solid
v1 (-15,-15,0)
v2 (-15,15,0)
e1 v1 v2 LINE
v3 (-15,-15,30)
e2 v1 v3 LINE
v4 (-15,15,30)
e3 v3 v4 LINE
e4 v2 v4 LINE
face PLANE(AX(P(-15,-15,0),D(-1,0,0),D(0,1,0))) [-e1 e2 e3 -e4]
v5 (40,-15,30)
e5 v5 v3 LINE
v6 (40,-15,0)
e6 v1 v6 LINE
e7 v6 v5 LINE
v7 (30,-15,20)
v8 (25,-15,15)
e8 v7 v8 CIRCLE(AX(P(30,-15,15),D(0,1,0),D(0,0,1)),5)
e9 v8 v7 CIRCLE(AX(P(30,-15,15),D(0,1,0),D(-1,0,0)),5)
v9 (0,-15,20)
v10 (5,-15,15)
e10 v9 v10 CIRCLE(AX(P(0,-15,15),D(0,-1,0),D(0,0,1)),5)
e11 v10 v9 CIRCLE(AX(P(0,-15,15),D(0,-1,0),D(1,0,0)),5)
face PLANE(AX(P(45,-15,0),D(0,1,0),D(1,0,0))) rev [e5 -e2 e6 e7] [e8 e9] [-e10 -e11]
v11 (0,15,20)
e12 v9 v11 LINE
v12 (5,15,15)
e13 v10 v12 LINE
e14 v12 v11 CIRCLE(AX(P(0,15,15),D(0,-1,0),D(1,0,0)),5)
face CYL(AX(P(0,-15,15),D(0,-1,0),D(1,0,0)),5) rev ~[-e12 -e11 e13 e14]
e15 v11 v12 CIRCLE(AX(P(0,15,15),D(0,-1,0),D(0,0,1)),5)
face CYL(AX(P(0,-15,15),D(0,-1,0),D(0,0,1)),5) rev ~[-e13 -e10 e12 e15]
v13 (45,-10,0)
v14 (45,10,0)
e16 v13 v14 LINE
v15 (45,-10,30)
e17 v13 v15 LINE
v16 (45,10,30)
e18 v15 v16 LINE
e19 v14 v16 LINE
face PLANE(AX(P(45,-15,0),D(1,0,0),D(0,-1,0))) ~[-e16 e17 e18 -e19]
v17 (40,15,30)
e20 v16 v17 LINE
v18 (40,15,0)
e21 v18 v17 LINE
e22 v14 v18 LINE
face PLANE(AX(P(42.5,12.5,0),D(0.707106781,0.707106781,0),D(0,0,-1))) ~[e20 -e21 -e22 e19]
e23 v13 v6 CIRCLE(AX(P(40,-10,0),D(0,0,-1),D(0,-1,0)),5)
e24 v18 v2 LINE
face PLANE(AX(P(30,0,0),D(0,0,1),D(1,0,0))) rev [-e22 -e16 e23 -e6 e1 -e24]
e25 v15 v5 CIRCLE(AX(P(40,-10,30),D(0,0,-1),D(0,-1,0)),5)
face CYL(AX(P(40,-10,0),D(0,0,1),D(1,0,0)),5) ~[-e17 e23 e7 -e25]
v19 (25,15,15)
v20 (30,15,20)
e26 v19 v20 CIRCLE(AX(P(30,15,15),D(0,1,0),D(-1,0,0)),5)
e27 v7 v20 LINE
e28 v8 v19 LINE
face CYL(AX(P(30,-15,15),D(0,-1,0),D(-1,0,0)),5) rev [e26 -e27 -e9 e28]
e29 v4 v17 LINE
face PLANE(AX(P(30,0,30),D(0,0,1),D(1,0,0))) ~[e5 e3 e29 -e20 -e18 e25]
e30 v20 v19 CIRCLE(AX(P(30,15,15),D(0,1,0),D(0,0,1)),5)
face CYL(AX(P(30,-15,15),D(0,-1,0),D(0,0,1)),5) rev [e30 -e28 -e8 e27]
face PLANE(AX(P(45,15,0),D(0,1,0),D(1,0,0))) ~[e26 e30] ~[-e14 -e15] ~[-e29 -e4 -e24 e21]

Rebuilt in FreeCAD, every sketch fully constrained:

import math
import FreeCAD as App
import Part
import Sketcher
Q = App.Units.Quantity


def edges_at(feature, points):
    """Names of the edges that pass closest to the given points."""
    edges = feature.Shape.Edges
    near = lambda p: min(range(len(edges)), key=lambda i: edges[i].distToShape(Part.Vertex(*p))[0])
    return sorted({f"Edge{near(p) + 1}" for p in points})


def add_polygon(sketch, points):
    """Adds a closed chain of lines whose ends are joined by coincident constraints."""
    first, n = sketch.GeometryCount, len(points)
    for a, b in zip(points, points[1:] + points[:1]):
        sketch.addGeometry(Part.LineSegment(App.Vector(*a, 0), App.Vector(*b, 0)), False)
    for i in range(n):
        sketch.addConstraint(Sketcher.Constraint("Coincident", first + i, 2, first + (i + 1) % n, 1))

doc = App.newDocument("Part")
body = doc.addObject("PartDesign::Body", "Body")

# Sketch on XY plane
sketch1 = body.newObject("Sketcher::SketchObject", "Sketch")
sketch1.AttachmentSupport = (doc.getObject("XY_Plane"), [""])
sketch1.MapMode = "FlatFace"
add_polygon(sketch1, [(-15, 15), (-15, -15), (15, -15), (15, 15)])  # lines 0-3
sketch1.addConstraint(Sketcher.Constraint("Vertical", 0))
sketch1.addConstraint(Sketcher.Constraint("Horizontal", 1))
sketch1.addConstraint(Sketcher.Constraint("Vertical", 2))
sketch1.addConstraint(Sketcher.Constraint("Horizontal", 3))
sketch1.addConstraint(Sketcher.Constraint("Symmetric", 0, 2, 2, 2, -1, 1))
sketch1.addConstraint(Sketcher.Constraint("Equal", 3, 0))
sketch1.addConstraint(Sketcher.Constraint("DistanceX", 1, 1, 1, 2, Q("30 mm")))
pad1 = body.newObject("PartDesign::Pad", "Pad")
pad1.Profile = sketch1
pad1.Length = 30

# Sketch on XZ plane
sketch2 = body.newObject("Sketcher::SketchObject", "Sketch001")
sketch2.AttachmentSupport = (doc.getObject("XZ_Plane"), [""])
sketch2.MapMode = "FlatFace"
sketch2.AttachmentOffset = App.Placement(App.Vector(0, 0, 15), App.Rotation())
sketch2.addGeometry(Part.ArcOfCircle(Part.Circle(App.Vector(0, 15, 0), App.Vector(0, 0, 1), 5), math.radians(90), math.radians(360)), False)
sketch2.addGeometry(Part.ArcOfCircle(Part.Circle(App.Vector(0, 15, 0), App.Vector(0, 0, 1), 5), math.radians(0), math.radians(90)), False)
sketch2.addConstraint(Sketcher.Constraint("Tangent", 0, 1, 1, 2))
sketch2.addConstraint(Sketcher.Constraint("Coincident", 1, 1, 0, 2))
sketch2.addConstraint(Sketcher.Constraint("PointOnObject", 0, 3, -2))
sketch2.addConstraint(Sketcher.Constraint("PointOnObject", 0, 1, -2))
sketch2.addConstraint(Sketcher.Constraint("Horizontal", 0, 3, 1, 1))
sketch2.addConstraint(Sketcher.Constraint("Radius", 0, Q("5 mm")))
sketch2.addConstraint(Sketcher.Constraint("DistanceY", -1, 1, 0, 3, Q("15 mm")))
pocket1 = body.newObject("PartDesign::Pocket", "Pocket")
pocket1.Profile = sketch2
pocket1.Type = "ThroughAll"
body2 = doc.addObject("PartDesign::Body", "Body001")
doc.recompute()

body2.BaseFeature = body
doc.recompute()

mirroring = doc.addObject("Part::Mirroring", "Mirroring")
mirroring.Source = body
mirroring.Base = App.Vector(15, 0, 15)
mirroring.Normal = App.Vector(1, 0, 0)
body3 = doc.addObject("PartDesign::Body", "Body002")
body3.BaseFeature = mirroring
boolean = body2.newObject("PartDesign::Boolean", "Boolean")
boolean.Type = "Fuse"
boolean.addObjects([body3])
doc.recompute()

fillet = body2.newObject("PartDesign::Fillet", "Fillet")
fillet.Base = (boolean, edges_at(boolean, [(45, -15, 15)]))
fillet.Radius = 5
doc.recompute()

chamfer = body2.newObject("PartDesign::Chamfer", "Chamfer")
chamfer.Base = (fillet, edges_at(fillet, [(45, 15, 15)]))
chamfer.Size = 5
mirroring.Visibility = False

doc.recompute()
